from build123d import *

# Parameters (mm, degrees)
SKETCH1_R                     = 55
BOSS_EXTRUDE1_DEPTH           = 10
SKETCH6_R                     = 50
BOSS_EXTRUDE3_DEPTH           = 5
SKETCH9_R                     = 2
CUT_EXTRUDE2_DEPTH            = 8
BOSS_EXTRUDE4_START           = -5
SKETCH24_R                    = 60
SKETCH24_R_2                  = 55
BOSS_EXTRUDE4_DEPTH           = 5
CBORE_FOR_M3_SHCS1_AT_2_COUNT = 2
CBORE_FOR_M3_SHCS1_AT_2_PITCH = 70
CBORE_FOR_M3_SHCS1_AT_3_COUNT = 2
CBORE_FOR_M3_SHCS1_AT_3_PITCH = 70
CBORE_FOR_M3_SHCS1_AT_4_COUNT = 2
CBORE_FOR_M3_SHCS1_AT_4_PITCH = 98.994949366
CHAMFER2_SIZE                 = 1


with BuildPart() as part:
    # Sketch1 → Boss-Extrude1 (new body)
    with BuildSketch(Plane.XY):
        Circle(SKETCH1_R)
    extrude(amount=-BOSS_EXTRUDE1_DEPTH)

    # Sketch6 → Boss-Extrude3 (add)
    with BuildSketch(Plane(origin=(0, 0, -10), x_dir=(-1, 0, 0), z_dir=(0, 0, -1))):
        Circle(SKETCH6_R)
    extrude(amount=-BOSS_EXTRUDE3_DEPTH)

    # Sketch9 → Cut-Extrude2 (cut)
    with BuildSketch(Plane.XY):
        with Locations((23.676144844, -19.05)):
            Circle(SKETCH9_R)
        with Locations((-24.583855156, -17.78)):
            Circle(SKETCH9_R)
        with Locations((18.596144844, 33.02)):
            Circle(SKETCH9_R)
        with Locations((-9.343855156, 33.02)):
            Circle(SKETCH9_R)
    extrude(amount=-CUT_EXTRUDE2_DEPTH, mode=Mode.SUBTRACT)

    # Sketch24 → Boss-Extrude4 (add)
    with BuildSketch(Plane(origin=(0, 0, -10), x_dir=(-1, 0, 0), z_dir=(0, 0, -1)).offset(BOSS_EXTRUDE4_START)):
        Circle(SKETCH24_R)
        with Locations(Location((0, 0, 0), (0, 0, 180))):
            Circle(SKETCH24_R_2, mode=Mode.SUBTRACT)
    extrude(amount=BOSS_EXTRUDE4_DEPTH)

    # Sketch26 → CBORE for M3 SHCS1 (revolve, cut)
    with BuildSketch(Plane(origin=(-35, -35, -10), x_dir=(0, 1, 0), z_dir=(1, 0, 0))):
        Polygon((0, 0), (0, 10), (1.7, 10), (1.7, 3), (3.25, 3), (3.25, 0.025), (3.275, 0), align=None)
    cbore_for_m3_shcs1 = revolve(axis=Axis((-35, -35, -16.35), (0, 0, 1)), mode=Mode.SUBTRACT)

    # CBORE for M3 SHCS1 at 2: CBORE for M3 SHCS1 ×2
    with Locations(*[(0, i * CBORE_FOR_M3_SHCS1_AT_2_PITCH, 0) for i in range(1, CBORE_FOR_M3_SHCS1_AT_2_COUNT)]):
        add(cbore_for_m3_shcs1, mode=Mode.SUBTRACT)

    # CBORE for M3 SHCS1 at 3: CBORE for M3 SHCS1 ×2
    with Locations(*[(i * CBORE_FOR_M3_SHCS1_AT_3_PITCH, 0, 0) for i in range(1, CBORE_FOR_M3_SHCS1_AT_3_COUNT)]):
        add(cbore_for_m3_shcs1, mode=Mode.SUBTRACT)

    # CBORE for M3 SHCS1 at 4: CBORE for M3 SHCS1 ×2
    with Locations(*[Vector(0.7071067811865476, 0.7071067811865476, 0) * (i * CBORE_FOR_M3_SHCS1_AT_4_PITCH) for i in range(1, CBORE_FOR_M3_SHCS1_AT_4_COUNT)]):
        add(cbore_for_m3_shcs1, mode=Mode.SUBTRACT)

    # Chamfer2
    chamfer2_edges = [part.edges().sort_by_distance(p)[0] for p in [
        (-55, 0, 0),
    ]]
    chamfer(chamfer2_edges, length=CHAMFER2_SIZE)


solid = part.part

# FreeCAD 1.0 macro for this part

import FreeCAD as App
import Part
import Sketcher
Q = App.Units.Quantity


def edges_at(feature, points):
    """Names of the edges that pass closest to the given points."""
    edges = feature.Shape.Edges
    near = lambda p: min(range(len(edges)), key=lambda i: edges[i].distToShape(Part.Vertex(*p))[0])
    return sorted({f"Edge{near(p) + 1}" for p in points})

doc = App.newDocument("Part")
params = doc.addObject("Spreadsheet::Sheet", "Params")
for row, (alias, value) in enumerate([
    ("sketch1_diameter", "110 mm"),
    ("pad1_length", "10 mm"),
    ("sketch2_diameter", "100 mm"),
    ("pad2_length", "5 mm"),
    ("sketch3_diameter", "4 mm"),
    ("pocket1_length", "8 mm"),
    ("sketch4_diameter", "120 mm"),
    ("sketch4_diameter2", "110 mm"),
    ("pad3_length", "5 mm"),
    ("sketch5_height", "10 mm"),
    ("sketch5_height2", "7 mm"),
    ("sketch5_width", "1.7 mm"),
    ("sketch5_width2", "1.55 mm"),
    ("groove_angle", "360 deg"),
    ("linearpattern_pitch", "70 mm"),
    ("linearpattern2_pitch", "70 mm"),
    ("linearpattern3_pitch", "98.994949 mm"),
    ("chamfer_size", "1 mm"),
], start=1):
    params.set(f"A{row}", alias)
    params.set(f"B{row}", "=" + value)
    params.setAlias(f"B{row}", alias)

body = doc.addObject("PartDesign::Body", "Body")

sketch1 = body.newObject("Sketcher::SketchObject", "Sketch")
sketch1.AttachmentSupport = (doc.getObject("XY_Plane"), [""])
sketch1.MapMode = "FlatFace"
sketch1.addGeometry(Part.Circle(App.Vector(0, 0, 0), App.Vector(0, 0, 1), 55), False)
sketch1.addConstraint(Sketcher.Constraint("Coincident", 0, 3, -1, 1))
sketch1.addConstraint(Sketcher.Constraint("Diameter", 0, Q("110 mm")))
sketch1.setExpression("Constraints[1]", "Params.sketch1_diameter")
pad1 = body.newObject("PartDesign::Pad", "Pad")
pad1.Profile = sketch1
pad1.setExpression("Length", "Params.pad1_length")
pad1.Reversed = True

sketch2 = body.newObject("Sketcher::SketchObject", "Sketch001")
sketch2.AttachmentSupport = (doc.getObject("XY_Plane"), [""])
sketch2.MapMode = "FlatFace"
sketch2.AttachmentOffset = App.Placement(App.Vector(0, 0, -10), App.Rotation())
sketch2.addGeometry(Part.Circle(App.Vector(0, 0, 0), App.Vector(0, 0, 1), 50), False)
sketch2.addConstraint(Sketcher.Constraint("Coincident", 0, 3, -1, 1))
sketch2.addConstraint(Sketcher.Constraint("Diameter", 0, Q("100 mm")))
sketch2.setExpression("Constraints[1]", "Params.sketch2_diameter")
pad2 = body.newObject("PartDesign::Pad", "Pad001")
pad2.Profile = sketch2
pad2.setExpression("Length", "Params.pad2_length")

sketch3 = body.newObject("Sketcher::SketchObject", "Sketch002")
sketch3.AttachmentSupport = (doc.getObject("XY_Plane"), [""])
sketch3.MapMode = "FlatFace"
sketch3.addGeometry(Part.Circle(App.Vector(23.7, -19.1, 0), App.Vector(0, 0, 1), 2), False)
sketch3.addGeometry(Part.Circle(App.Vector(-24.6, -17.8, 0), App.Vector(0, 0, 1), 2), False)
sketch3.addGeometry(Part.Circle(App.Vector(18.6, 33, 0), App.Vector(0, 0, 1), 2), False)
sketch3.addGeometry(Part.Circle(App.Vector(-9.3, 33, 0), App.Vector(0, 0, 1), 2), False)
sketch3.addConstraint(Sketcher.Constraint("Equal", 0, 1))
sketch3.addConstraint(Sketcher.Constraint("Equal", 1, 2))
sketch3.addConstraint(Sketcher.Constraint("Equal", 2, 3))
sketch3.addConstraint(Sketcher.Constraint("Horizontal", 2, 3, 3, 3))
sketch3.addConstraint(Sketcher.Constraint("Diameter", 0, Q("4 mm")))
sketch3.addConstraint(Sketcher.Constraint("DistanceY", 1, 3, 2, 3, Q("50.8 mm")))
sketch3.addConstraint(Sketcher.Constraint("DistanceY", 0, 3, -1, 1, Q("19.05 mm")))
sketch3.addConstraint(Sketcher.Constraint("DistanceY", 1, 3, -1, 1, Q("17.78 mm")))
sketch3.addConstraint(Sketcher.Constraint("DistanceX", 1, 3, 0, 3, Q("48.26 mm")))
sketch3.addConstraint(Sketcher.Constraint("DistanceX", 2, 3, 0, 3, Q("5.08 mm")))
sketch3.addConstraint(Sketcher.Constraint("DistanceX", 3, 3, 2, 3, Q("27.94 mm")))
sketch3.addConstraint(Sketcher.Constraint("DistanceX", -1, 1, 0, 3, Q("23.676145 mm")))
sketch3.setExpression("Constraints[4]", "Params.sketch3_diameter")
pocket1 = body.newObject("PartDesign::Pocket", "Pocket")
pocket1.Profile = sketch3
pocket1.setExpression("Length", "Params.pocket1_length")

sketch4 = body.newObject("Sketcher::SketchObject", "Sketch003")
sketch4.AttachmentSupport = (doc.getObject("XY_Plane"), [""])
sketch4.MapMode = "FlatFace"
sketch4.AttachmentOffset = App.Placement(App.Vector(0, 0, -5), App.Rotation())
sketch4.addGeometry(Part.Circle(App.Vector(0, 0, 0), App.Vector(0, 0, 1), 60), False)
sketch4.addGeometry(Part.Circle(App.Vector(0, 0, 0), App.Vector(0, 0, 1), 55), False)
sketch4.addConstraint(Sketcher.Constraint("Coincident", 0, 3, -1, 1))
sketch4.addConstraint(Sketcher.Constraint("Coincident", 1, 3, -1, 1))
sketch4.addConstraint(Sketcher.Constraint("Diameter", 0, Q("120 mm")))
sketch4.addConstraint(Sketcher.Constraint("Diameter", 1, Q("110 mm")))
sketch4.setExpression("Constraints[2]", "Params.sketch4_diameter")
sketch4.setExpression("Constraints[3]", "Params.sketch4_diameter2")
pad3 = body.newObject("PartDesign::Pad", "Pad002")
pad3.Profile = sketch4
pad3.setExpression("Length", "Params.pad3_length")
pad3.Reversed = True

sketch5 = body.newObject("Sketcher::SketchObject", "Sketch004")
sketch5.AttachmentSupport = (doc.getObject("YZ_Plane"), [""])
sketch5.MapMode = "FlatFace"
sketch5.AttachmentOffset = App.Placement(App.Vector(0, 0, -35), App.Rotation())
sketch5.addGeometry(Part.LineSegment(App.Vector(-35, 0, 0), App.Vector(-35, -10, 0)), False)
sketch5.addGeometry(Part.LineSegment(App.Vector(-35, -10, 0), App.Vector(-31.725, -10, 0)), False)
sketch5.addGeometry(Part.LineSegment(App.Vector(-31.725, -10, 0), App.Vector(-31.75, -9.975, 0)), False)
sketch5.addGeometry(Part.LineSegment(App.Vector(-31.75, -9.975, 0), App.Vector(-31.75, -7, 0)), False)
sketch5.addGeometry(Part.LineSegment(App.Vector(-31.75, -7, 0), App.Vector(-33.3, -7, 0)), False)
sketch5.addGeometry(Part.LineSegment(App.Vector(-33.3, -7, 0), App.Vector(-33.3, 0, 0)), False)
sketch5.addGeometry(Part.LineSegment(App.Vector(-33.3, 0, 0), App.Vector(-35, 0, 0)), False)
sketch5.addGeometry(Part.LineSegment(App.Vector(-35, -10, 0), App.Vector(-35, 0, 0)), True)
sketch5.addConstraint(Sketcher.Constraint("Coincident", 0, 2, 1, 1))
sketch5.addConstraint(Sketcher.Constraint("Coincident", 1, 2, 2, 1))
sketch5.addConstraint(Sketcher.Constraint("Coincident", 2, 2, 3, 1))
sketch5.addConstraint(Sketcher.Constraint("Coincident", 3, 2, 4, 1))
sketch5.addConstraint(Sketcher.Constraint("Coincident", 4, 2, 5, 1))
sketch5.addConstraint(Sketcher.Constraint("Coincident", 5, 2, 6, 1))
sketch5.addConstraint(Sketcher.Constraint("Coincident", 6, 2, 0, 1))
sketch5.addConstraint(Sketcher.Constraint("Vertical", 0))
sketch5.addConstraint(Sketcher.Constraint("Horizontal", 1))
sketch5.addConstraint(Sketcher.Constraint("Vertical", 3))
sketch5.addConstraint(Sketcher.Constraint("Horizontal", 4))
sketch5.addConstraint(Sketcher.Constraint("Vertical", 5))
sketch5.addConstraint(Sketcher.Constraint("Horizontal", 6))
sketch5.addConstraint(Sketcher.Constraint("Vertical", 7))
sketch5.addConstraint(Sketcher.Constraint("Coincident", 7, 1, 0, 2))
sketch5.addConstraint(Sketcher.Constraint("PointOnObject", 5, 2, -1))
sketch5.addConstraint(Sketcher.Constraint("PointOnObject", 7, 2, -1))
sketch5.addConstraint(Sketcher.Constraint("DistanceY", 0, 2, 0, 1, Q("10 mm")))
sketch5.addConstraint(Sketcher.Constraint("DistanceY", 5, 1, 5, 2, Q("7 mm")))
sketch5.addConstraint(Sketcher.Constraint("Angle", 2, Q("135 deg")))
sketch5.addConstraint(Sketcher.Constraint("DistanceX", 6, 2, 6, 1, Q("1.7 mm")))
sketch5.addConstraint(Sketcher.Constraint("DistanceX", 0, 2, -1, 1, Q("35 mm")))
sketch5.addConstraint(Sketcher.Constraint("DistanceX", 4, 2, 4, 1, Q("1.55 mm")))
sketch5.addConstraint(Sketcher.Constraint("DistanceX", 1, 1, 1, 2, Q("3.275 mm")))
sketch5.setExpression("Constraints[17]", "Params.sketch5_height")
sketch5.setExpression("Constraints[18]", "Params.sketch5_height2")
sketch5.setExpression("Constraints[20]", "Params.sketch5_width")
sketch5.setExpression("Constraints[22]", "Params.sketch5_width2")
groove = body.newObject("PartDesign::Groove", "Groove")
groove.Profile = sketch5
groove.ReferenceAxis = (sketch5, ["Axis0"])
groove.setExpression("Angle", "Params.groove_angle")
doc.recompute()

linearpattern = body.newObject("PartDesign::LinearPattern", "LinearPattern")
linearpattern.Originals = [groove]
linearpattern.Direction = (doc.getObject("Y_Axis"), [""])
linearpattern.Mode = "offset"
linearpattern.setExpression("Offset", "Params.linearpattern_pitch")
linearpattern.Occurrences = 2
body.Tip = linearpattern
doc.recompute()

linearpattern2 = body.newObject("PartDesign::LinearPattern", "LinearPattern001")
linearpattern2.Originals = [groove]
linearpattern2.Direction = (doc.getObject("X_Axis"), [""])
linearpattern2.Mode = "offset"
linearpattern2.setExpression("Offset", "Params.linearpattern2_pitch")
linearpattern2.Occurrences = 2
body.Tip = linearpattern2
doc.recompute()

datumline = body.newObject("PartDesign::Line", "DatumLine")
datumline.Placement = App.Placement(App.Vector(0, 0, 0), App.Rotation(App.Vector(0, 0, 1), App.Vector(0.707106781, 0.707106781, 0)))
linearpattern3 = body.newObject("PartDesign::LinearPattern", "LinearPattern002")
linearpattern3.Originals = [groove]
linearpattern3.Direction = (datumline, [""])
linearpattern3.Mode = "offset"
linearpattern3.setExpression("Offset", "Params.linearpattern3_pitch")
linearpattern3.Occurrences = 2
body.Tip = linearpattern3
doc.recompute()

chamfer = body.newObject("PartDesign::Chamfer", "Chamfer")
chamfer.Base = (linearpattern3, edges_at(linearpattern3, [(-55, 0, 0)]))
chamfer.setExpression("Size", "Params.chamfer_size")

doc.recompute()
